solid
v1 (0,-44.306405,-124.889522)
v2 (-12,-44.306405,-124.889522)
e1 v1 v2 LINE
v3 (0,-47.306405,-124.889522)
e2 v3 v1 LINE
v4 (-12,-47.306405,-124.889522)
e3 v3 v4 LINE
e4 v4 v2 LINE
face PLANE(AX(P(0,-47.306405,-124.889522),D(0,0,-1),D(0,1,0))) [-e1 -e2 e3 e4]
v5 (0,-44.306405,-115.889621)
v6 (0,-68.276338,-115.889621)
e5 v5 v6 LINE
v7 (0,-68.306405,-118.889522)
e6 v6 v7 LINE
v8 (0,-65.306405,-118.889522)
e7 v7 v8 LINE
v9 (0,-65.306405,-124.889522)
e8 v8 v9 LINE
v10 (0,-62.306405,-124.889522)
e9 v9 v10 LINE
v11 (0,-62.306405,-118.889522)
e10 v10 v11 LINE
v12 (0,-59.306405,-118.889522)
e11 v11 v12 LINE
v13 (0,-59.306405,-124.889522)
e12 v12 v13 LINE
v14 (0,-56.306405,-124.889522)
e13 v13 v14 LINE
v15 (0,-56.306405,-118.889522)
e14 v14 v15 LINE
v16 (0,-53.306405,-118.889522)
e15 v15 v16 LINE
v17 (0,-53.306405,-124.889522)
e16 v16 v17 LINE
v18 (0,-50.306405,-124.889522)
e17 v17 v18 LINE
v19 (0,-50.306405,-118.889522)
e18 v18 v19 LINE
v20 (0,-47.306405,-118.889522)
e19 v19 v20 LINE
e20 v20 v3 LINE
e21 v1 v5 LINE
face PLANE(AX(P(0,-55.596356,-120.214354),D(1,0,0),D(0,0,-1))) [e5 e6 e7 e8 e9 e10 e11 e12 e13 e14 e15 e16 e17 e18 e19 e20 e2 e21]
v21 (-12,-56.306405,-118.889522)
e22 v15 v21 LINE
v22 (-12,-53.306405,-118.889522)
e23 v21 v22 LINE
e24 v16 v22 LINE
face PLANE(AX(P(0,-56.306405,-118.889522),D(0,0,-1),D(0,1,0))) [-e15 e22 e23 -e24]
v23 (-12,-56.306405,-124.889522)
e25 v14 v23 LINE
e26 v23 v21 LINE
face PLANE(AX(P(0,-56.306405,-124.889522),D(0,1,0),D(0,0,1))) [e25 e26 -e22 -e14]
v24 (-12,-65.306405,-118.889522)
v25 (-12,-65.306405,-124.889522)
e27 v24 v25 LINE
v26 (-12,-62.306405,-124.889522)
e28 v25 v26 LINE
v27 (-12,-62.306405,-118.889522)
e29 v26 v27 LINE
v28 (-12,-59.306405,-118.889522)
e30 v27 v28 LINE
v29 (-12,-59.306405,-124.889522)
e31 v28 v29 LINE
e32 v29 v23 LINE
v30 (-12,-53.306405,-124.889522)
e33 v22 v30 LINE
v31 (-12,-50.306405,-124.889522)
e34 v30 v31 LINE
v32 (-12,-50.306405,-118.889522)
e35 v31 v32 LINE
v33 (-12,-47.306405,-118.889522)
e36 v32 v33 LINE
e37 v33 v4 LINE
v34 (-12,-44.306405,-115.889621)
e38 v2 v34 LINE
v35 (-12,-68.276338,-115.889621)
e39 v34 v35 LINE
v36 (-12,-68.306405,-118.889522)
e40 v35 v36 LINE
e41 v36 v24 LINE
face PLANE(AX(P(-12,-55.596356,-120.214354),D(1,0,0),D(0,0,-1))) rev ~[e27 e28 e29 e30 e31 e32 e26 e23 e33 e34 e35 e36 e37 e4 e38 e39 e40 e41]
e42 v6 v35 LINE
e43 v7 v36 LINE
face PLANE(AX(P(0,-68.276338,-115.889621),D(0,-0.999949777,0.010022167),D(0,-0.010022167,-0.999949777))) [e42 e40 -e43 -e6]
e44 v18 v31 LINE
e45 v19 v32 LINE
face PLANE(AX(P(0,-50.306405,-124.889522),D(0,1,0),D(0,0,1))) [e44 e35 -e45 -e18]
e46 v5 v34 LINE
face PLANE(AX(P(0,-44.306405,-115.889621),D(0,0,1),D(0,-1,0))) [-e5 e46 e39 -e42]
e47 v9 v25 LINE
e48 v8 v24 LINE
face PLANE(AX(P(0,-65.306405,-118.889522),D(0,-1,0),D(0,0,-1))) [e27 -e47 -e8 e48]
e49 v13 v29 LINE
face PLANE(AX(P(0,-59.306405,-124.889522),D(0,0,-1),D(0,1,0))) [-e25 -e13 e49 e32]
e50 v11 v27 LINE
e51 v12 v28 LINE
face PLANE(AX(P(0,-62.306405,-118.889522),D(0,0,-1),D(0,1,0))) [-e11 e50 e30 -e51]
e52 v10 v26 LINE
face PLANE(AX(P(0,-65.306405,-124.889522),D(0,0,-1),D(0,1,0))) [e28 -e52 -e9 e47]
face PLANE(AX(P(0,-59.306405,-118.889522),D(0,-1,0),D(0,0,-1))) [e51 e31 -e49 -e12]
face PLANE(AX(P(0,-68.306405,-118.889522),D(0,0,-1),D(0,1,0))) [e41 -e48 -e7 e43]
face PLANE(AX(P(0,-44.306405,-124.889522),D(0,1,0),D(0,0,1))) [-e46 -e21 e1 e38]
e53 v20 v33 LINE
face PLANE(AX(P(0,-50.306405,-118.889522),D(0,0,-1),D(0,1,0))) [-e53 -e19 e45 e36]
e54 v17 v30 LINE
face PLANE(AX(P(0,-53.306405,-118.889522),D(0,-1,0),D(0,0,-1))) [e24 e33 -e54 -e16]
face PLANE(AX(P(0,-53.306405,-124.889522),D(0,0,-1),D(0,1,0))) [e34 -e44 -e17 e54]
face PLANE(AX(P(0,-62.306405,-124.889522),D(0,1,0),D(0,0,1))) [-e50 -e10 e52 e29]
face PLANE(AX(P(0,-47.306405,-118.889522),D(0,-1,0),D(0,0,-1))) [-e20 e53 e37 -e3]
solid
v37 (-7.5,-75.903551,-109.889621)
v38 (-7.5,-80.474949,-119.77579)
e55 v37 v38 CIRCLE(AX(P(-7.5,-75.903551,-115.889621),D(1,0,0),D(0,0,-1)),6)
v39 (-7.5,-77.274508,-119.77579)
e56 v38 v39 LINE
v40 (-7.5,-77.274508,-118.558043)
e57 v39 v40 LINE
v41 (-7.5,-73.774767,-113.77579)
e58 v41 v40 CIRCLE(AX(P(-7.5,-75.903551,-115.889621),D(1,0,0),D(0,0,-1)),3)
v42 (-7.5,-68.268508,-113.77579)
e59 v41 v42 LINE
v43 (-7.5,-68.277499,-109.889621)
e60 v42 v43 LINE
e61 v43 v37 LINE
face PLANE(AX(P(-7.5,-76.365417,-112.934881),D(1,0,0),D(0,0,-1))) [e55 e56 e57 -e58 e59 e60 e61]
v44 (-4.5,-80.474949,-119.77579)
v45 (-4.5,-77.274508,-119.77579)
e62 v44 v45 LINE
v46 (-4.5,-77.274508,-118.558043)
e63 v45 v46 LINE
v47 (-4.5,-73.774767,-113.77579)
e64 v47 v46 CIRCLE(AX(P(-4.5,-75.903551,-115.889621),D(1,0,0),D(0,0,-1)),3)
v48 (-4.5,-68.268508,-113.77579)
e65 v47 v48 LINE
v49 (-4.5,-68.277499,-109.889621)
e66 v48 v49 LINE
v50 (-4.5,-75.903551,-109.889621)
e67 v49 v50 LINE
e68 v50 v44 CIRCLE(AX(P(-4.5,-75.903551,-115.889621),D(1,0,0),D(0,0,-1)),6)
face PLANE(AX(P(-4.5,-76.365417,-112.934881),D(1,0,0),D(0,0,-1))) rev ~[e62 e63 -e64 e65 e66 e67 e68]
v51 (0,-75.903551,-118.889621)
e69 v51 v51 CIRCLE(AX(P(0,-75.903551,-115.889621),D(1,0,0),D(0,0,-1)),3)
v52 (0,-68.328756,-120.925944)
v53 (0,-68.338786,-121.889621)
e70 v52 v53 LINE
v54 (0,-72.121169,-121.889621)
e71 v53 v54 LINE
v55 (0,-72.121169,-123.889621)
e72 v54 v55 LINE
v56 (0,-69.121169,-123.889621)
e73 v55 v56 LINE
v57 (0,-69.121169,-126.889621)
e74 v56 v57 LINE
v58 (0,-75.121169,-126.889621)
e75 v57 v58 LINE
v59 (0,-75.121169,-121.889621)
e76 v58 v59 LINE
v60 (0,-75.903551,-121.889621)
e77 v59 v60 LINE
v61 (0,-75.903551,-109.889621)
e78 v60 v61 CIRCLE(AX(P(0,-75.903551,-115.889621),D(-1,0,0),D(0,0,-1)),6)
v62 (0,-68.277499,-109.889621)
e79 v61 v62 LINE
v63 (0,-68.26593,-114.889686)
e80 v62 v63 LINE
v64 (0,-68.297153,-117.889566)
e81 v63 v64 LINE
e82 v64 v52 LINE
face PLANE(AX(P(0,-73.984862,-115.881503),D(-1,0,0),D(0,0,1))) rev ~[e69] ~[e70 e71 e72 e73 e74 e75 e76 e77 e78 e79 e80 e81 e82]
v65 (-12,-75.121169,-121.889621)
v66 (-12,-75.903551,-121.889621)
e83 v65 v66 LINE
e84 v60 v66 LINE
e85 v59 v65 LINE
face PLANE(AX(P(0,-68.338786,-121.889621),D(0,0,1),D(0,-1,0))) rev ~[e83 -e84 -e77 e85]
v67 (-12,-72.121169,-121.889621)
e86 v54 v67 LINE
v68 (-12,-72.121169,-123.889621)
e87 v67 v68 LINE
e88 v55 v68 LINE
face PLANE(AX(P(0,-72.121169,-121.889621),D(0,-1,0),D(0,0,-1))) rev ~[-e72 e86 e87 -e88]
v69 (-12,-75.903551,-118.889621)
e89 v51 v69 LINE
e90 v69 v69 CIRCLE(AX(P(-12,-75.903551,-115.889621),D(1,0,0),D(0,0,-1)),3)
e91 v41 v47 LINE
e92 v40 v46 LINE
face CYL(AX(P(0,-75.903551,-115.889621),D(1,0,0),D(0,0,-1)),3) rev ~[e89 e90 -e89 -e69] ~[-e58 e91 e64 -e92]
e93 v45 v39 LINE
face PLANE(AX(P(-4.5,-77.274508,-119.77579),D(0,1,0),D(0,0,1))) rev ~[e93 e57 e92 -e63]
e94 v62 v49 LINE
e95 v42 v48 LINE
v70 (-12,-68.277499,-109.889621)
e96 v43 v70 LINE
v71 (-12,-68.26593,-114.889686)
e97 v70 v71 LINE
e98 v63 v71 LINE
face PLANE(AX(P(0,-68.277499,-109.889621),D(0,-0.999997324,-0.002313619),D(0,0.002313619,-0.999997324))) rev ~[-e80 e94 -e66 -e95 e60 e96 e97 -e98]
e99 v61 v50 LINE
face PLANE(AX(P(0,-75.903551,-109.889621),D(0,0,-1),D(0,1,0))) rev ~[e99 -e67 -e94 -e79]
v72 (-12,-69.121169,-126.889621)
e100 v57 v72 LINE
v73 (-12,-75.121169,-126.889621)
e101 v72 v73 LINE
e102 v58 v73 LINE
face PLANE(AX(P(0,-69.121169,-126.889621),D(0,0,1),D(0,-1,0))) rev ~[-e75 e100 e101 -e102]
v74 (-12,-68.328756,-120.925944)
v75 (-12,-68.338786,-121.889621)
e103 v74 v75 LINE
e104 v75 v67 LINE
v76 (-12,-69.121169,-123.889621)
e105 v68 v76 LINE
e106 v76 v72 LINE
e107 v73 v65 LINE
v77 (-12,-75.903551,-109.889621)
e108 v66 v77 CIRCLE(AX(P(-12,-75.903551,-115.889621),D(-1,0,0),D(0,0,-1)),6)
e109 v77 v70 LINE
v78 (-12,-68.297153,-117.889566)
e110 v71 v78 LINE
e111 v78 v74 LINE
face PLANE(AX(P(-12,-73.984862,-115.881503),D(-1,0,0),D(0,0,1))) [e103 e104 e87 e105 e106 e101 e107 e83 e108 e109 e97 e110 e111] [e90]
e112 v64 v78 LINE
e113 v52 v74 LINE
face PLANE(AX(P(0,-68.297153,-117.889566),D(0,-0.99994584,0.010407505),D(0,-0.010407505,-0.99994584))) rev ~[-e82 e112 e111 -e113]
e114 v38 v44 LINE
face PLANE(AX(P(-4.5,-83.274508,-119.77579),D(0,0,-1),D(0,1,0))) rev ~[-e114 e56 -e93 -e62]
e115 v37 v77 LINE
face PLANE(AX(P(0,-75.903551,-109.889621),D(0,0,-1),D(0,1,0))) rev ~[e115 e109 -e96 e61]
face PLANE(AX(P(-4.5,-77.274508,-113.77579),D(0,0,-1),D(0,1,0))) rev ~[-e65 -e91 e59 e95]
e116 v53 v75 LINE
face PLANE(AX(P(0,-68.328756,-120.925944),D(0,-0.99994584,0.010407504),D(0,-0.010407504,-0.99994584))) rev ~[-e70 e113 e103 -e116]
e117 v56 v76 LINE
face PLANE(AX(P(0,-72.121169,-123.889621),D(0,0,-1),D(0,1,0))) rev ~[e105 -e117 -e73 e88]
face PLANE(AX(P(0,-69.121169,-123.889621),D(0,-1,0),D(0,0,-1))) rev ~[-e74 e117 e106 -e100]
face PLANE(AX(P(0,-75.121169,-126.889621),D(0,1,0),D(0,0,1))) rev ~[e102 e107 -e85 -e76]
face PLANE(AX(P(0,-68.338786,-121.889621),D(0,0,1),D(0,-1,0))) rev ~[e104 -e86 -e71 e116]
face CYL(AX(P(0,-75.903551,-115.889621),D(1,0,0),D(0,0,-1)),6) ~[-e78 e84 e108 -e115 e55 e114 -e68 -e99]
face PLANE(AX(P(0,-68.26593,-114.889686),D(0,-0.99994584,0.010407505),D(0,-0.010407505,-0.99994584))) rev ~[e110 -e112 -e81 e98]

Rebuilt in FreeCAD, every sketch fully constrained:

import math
import FreeCAD as App
import Part
import Sketcher

V = App.Vector

doc = App.newDocument("Part")
params = doc.addObject("Spreadsheet::Sheet", "Params")
for row, (alias, value) in enumerate([
    ("sketch1_diameter", "6 mm"),
    ("sketch1_radius", "6 mm"),
    ("pad1_length", "12 mm"),
    ("sketch2_width", "16 mm"),
    ("sketch2_width2", "6 mm"),
    ("sketch2_height", "11.5 mm"),
    ("pocket1_length", "3 mm"),
    ("sketch3_width", "3 mm"),
    ("sketch3_height", "2 mm"),
    ("pad2_length", "12 mm"),
    ("sketch4_width", "3 mm"),
    ("sketch4_height", "6 mm"),
    ("pad3_length", "12 mm"),
], start=1):
    params.set(f"A{row}", alias)
    params.set(f"B{row}", "=" + value)
    params.setAlias(f"B{row}", alias)

body = doc.addObject("PartDesign::Body", "Body")

# Sketch on YZ plane
sketch1 = body.newObject("Sketcher::SketchObject", "Sketch")
sketch1.AttachmentSupport = (doc.getObject("YZ_Plane"), [""])
sketch1.MapMode = "FlatFace"
sketch1.addGeometry(Part.LineSegment(V(-68.297153, -117.889566, 0), V(-68.26593, -114.889686, 0)), False)
sketch1.addGeometry(Part.LineSegment(V(-68.26593, -114.889686, 0), V(-68.277499, -109.889621, 0)), False)
sketch1.addGeometry(Part.LineSegment(V(-68.277499, -109.889621, 0), V(-75.903551, -109.889621, 0)), False)
sketch1.addGeometry(Part.ArcOfCircle(Part.Circle(V(-75.903551, -115.889621, 0), V(0, 0, 1), 6), math.radians(90), math.radians(270)), False)
sketch1.addGeometry(Part.LineSegment(V(-75.903551, -121.889621, 0), V(-68.338786, -121.889621, 0)), False)
sketch1.addGeometry(Part.LineSegment(V(-68.338786, -121.889621, 0), V(-68.328756, -120.925944, 0)), False)
sketch1.addGeometry(Part.LineSegment(V(-68.328756, -120.925944, 0), V(-68.297153, -117.889566, 0)), False)
sketch1.addGeometry(Part.Circle(V(-75.903551, -115.889621, 0), V(0, 0, 1), 3), False)
sketch1.addConstraint(Sketcher.Constraint("Coincident", 0, 2, 1, 1))
sketch1.addConstraint(Sketcher.Constraint("Coincident", 1, 2, 2, 1))
sketch1.addConstraint(Sketcher.Constraint("Tangent", 2, 2, 3, 1))
sketch1.addConstraint(Sketcher.Constraint("Tangent", 3, 2, 4, 1))
sketch1.addConstraint(Sketcher.Constraint("Coincident", 4, 2, 5, 1))
sketch1.addConstraint(Sketcher.Constraint("Coincident", 5, 2, 6, 1))
sketch1.addConstraint(Sketcher.Constraint("Coincident", 6, 2, 0, 1))
sketch1.addConstraint(Sketcher.Constraint("Horizontal", 2))
sketch1.addConstraint(Sketcher.Constraint("Horizontal", 4))
sketch1.addConstraint(Sketcher.Constraint("Coincident", 7, 3, 3, 3))
sketch1.addConstraint(Sketcher.Constraint("Parallel", 0, 5))
sketch1.addConstraint(Sketcher.Constraint("Parallel", 5, 6))
sketch1.addConstraint(Sketcher.Constraint("Diameter", 7, 6.0))
sketch1.addConstraint(Sketcher.Constraint("Radius", 3, 6.0))
sketch1.addConstraint(Sketcher.Constraint("DistanceX", 1, 2, -1, 1, 68.277499))
sketch1.addConstraint(Sketcher.Constraint("Distance", 1, 5.000079))
sketch1.addConstraint(Sketcher.Constraint("Distance", 5, 0.963729))
sketch1.addConstraint(Sketcher.Constraint("DistanceX", 2, 2, 2, 1, 7.626052))
sketch1.addConstraint(Sketcher.Constraint("DistanceX", 4, 1, 4, 2, 7.564765))
sketch1.addConstraint(Sketcher.Constraint("DistanceY", 3, 3, -1, 1, 115.889621))
sketch1.addConstraint(Sketcher.Constraint("DistanceX", 0, 2, -1, 1, 68.26593))
sketch1.addConstraint(Sketcher.Constraint("DistanceY", 6, 2, 0, 2, 2.99988))
sketch1.setExpression("Constraints[12]", "Params.sketch1_diameter")
sketch1.setExpression("Constraints[13]", "Params.sketch1_radius")
pad1 = body.newObject("PartDesign::Pad", "Pad")
pad1.Profile = sketch1
pad1.setExpression("Length", "Params.pad1_length")
pad1.Reversed = True

# Sketch on YZ plane
sketch2 = body.newObject("Sketcher::SketchObject", "Sketch001")
sketch2.AttachmentSupport = (doc.getObject("YZ_Plane"), [""])
sketch2.MapMode = "FlatFace"
sketch2.AttachmentOffset = App.Placement(V(0, 0, -4.5), App.Rotation())
sketch2.addGeometry(Part.LineSegment(V(-67.274508, -108.27579, 0), V(-83.274508, -108.27579, 0)), False)
sketch2.addGeometry(Part.LineSegment(V(-83.274508, -108.27579, 0), V(-83.274508, -119.77579, 0)), False)
sketch2.addGeometry(Part.LineSegment(V(-83.274508, -119.77579, 0), V(-77.274508, -119.77579, 0)), False)
sketch2.addGeometry(Part.LineSegment(V(-77.274508, -119.77579, 0), V(-77.274508, -113.77579, 0)), False)
sketch2.addGeometry(Part.LineSegment(V(-77.274508, -113.77579, 0), V(-67.274508, -113.77579, 0)), False)
sketch2.addGeometry(Part.LineSegment(V(-67.274508, -113.77579, 0), V(-67.274508, -108.27579, 0)), False)
sketch2.addConstraint(Sketcher.Constraint("Coincident", 0, 2, 1, 1))
sketch2.addConstraint(Sketcher.Constraint("Coincident", 1, 2, 2, 1))
sketch2.addConstraint(Sketcher.Constraint("Coincident", 2, 2, 3, 1))
sketch2.addConstraint(Sketcher.Constraint("Coincident", 3, 2, 4, 1))
sketch2.addConstraint(Sketcher.Constraint("Coincident", 4, 2, 5, 1))
sketch2.addConstraint(Sketcher.Constraint("Coincident", 5, 2, 0, 1))
sketch2.addConstraint(Sketcher.Constraint("Horizontal", 0))
sketch2.addConstraint(Sketcher.Constraint("Vertical", 1))
sketch2.addConstraint(Sketcher.Constraint("Horizontal", 2))
sketch2.addConstraint(Sketcher.Constraint("Vertical", 3))
sketch2.addConstraint(Sketcher.Constraint("Horizontal", 4))
sketch2.addConstraint(Sketcher.Constraint("Vertical", 5))
sketch2.addConstraint(Sketcher.Constraint("Equal", 2, 3))
sketch2.addConstraint(Sketcher.Constraint("DistanceX", 0, 2, 0, 1, 16.0))
sketch2.addConstraint(Sketcher.Constraint("DistanceX", 2, 1, 2, 2, 6.0))
sketch2.addConstraint(Sketcher.Constraint("DistanceY", 1, 2, 1, 1, 11.5))
sketch2.addConstraint(Sketcher.Constraint("DistanceX", 0, 2, -1, 1, 83.274508))
sketch2.addConstraint(Sketcher.Constraint("DistanceY", 0, 2, -1, 1, 108.27579))
sketch2.setExpression("Constraints[13]", "Params.sketch2_width")
sketch2.setExpression("Constraints[14]", "Params.sketch2_width2")
sketch2.setExpression("Constraints[15]", "Params.sketch2_height")
pocket1 = body.newObject("PartDesign::Pocket", "Pocket")
pocket1.Profile = sketch2
pocket1.setExpression("Length", "Params.pocket1_length")

# Sketch on YZ plane
sketch3 = body.newObject("Sketcher::SketchObject", "Sketch002")
sketch3.AttachmentSupport = (doc.getObject("YZ_Plane"), [""])
sketch3.MapMode = "FlatFace"
sketch3.addGeometry(Part.LineSegment(V(-72.121169, -123.889621, 0), V(-72.121169, -121.889621, 0)), False)
sketch3.addGeometry(Part.LineSegment(V(-72.121169, -121.889621, 0), V(-75.121169, -121.889621, 0)), False)
sketch3.addGeometry(Part.LineSegment(V(-75.121169, -121.889621, 0), V(-75.121169, -126.889621, 0)), False)
sketch3.addGeometry(Part.LineSegment(V(-75.121169, -126.889621, 0), V(-69.121169, -126.889621, 0)), False)
sketch3.addGeometry(Part.LineSegment(V(-69.121169, -126.889621, 0), V(-69.121169, -123.889621, 0)), False)
sketch3.addGeometry(Part.LineSegment(V(-69.121169, -123.889621, 0), V(-72.121169, -123.889621, 0)), False)
sketch3.addConstraint(Sketcher.Constraint("Coincident", 0, 2, 1, 1))
sketch3.addConstraint(Sketcher.Constraint("Coincident", 1, 2, 2, 1))
sketch3.addConstraint(Sketcher.Constraint("Coincident", 2, 2, 3, 1))
sketch3.addConstraint(Sketcher.Constraint("Coincident", 3, 2, 4, 1))
sketch3.addConstraint(Sketcher.Constraint("Coincident", 4, 2, 5, 1))
sketch3.addConstraint(Sketcher.Constraint("Coincident", 5, 2, 0, 1))
sketch3.addConstraint(Sketcher.Constraint("Vertical", 0))
sketch3.addConstraint(Sketcher.Constraint("Horizontal", 1))
sketch3.addConstraint(Sketcher.Constraint("Vertical", 2))
sketch3.addConstraint(Sketcher.Constraint("Horizontal", 3))
sketch3.addConstraint(Sketcher.Constraint("Vertical", 4))
sketch3.addConstraint(Sketcher.Constraint("Horizontal", 5))
sketch3.addConstraint(Sketcher.Constraint("Equal", 1, 5))
sketch3.addConstraint(Sketcher.Constraint("Equal", 5, 4))
sketch3.addConstraint(Sketcher.Constraint("DistanceX", 1, 2, 1, 1, 3.0))
sketch3.addConstraint(Sketcher.Constraint("DistanceY", 0, 1, 0, 2, 2.0))
sketch3.addConstraint(Sketcher.Constraint("DistanceX", 0, 2, -1, 1, 72.121169))
sketch3.addConstraint(Sketcher.Constraint("DistanceY", 0, 2, -1, 1, 121.889621))
sketch3.setExpression("Constraints[14]", "Params.sketch3_width")
sketch3.setExpression("Constraints[15]", "Params.sketch3_height")
pad2 = body.newObject("PartDesign::Pad", "Pad001")
pad2.Profile = sketch3
pad2.setExpression("Length", "Params.pad2_length")
pad2.Reversed = True
body2 = doc.addObject("PartDesign::Body", "Body001")

# Sketch on YZ plane
sketch4 = body2.newObject("Sketcher::SketchObject", "Sketch003")
sketch4.AttachmentSupport = (doc.getObject("YZ_Plane001"), [""])
sketch4.MapMode = "FlatFace"
sketch4.addGeometry(Part.LineSegment(V(-44.306405, -115.889621, 0), V(-68.276338, -115.889621, 0)), False)
sketch4.addGeometry(Part.LineSegment(V(-68.276338, -115.889621, 0), V(-68.306405, -118.889522, 0)), False)
sketch4.addGeometry(Part.LineSegment(V(-68.306405, -118.889522, 0), V(-65.306405, -118.889522, 0)), False)
sketch4.addGeometry(Part.LineSegment(V(-65.306405, -118.889522, 0), V(-65.306405, -124.889522, 0)), False)
sketch4.addGeometry(Part.LineSegment(V(-65.306405, -124.889522, 0), V(-62.306405, -124.889522, 0)), False)
sketch4.addGeometry(Part.LineSegment(V(-62.306405, -124.889522, 0), V(-62.306405, -118.889522, 0)), False)
sketch4.addGeometry(Part.LineSegment(V(-62.306405, -118.889522, 0), V(-59.306405, -118.889522, 0)), False)
sketch4.addGeometry(Part.LineSegment(V(-59.306405, -118.889522, 0), V(-59.306405, -124.889522, 0)), False)
sketch4.addGeometry(Part.LineSegment(V(-59.306405, -124.889522, 0), V(-56.306405, -124.889522, 0)), False)
sketch4.addGeometry(Part.LineSegment(V(-56.306405, -124.889522, 0), V(-56.306405, -118.889522, 0)), False)
sketch4.addGeometry(Part.LineSegment(V(-56.306405, -118.889522, 0), V(-53.306405, -118.889522, 0)), False)
sketch4.addGeometry(Part.LineSegment(V(-53.306405, -118.889522, 0), V(-53.306405, -124.889522, 0)), False)
sketch4.addGeometry(Part.LineSegment(V(-53.306405, -124.889522, 0), V(-50.306405, -124.889522, 0)), False)
sketch4.addGeometry(Part.LineSegment(V(-50.306405, -124.889522, 0), V(-50.306405, -118.889522, 0)), False)
sketch4.addGeometry(Part.LineSegment(V(-50.306405, -118.889522, 0), V(-47.306405, -118.889522, 0)), False)
sketch4.addGeometry(Part.LineSegment(V(-47.306405, -118.889522, 0), V(-47.306405, -124.889522, 0)), False)
sketch4.addGeometry(Part.LineSegment(V(-47.306405, -124.889522, 0), V(-44.306405, -124.889522, 0)), False)
sketch4.addGeometry(Part.LineSegment(V(-44.306405, -124.889522, 0), V(-44.306405, -115.889621, 0)), False)
sketch4.addConstraint(Sketcher.Constraint("Coincident", 0, 2, 1, 1))
sketch4.addConstraint(Sketcher.Constraint("Coincident", 1, 2, 2, 1))
sketch4.addConstraint(Sketcher.Constraint("Coincident", 2, 2, 3, 1))
sketch4.addConstraint(Sketcher.Constraint("Coincident", 3, 2, 4, 1))
sketch4.addConstraint(Sketcher.Constraint("Coincident", 4, 2, 5, 1))
sketch4.addConstraint(Sketcher.Constraint("Coincident", 5, 2, 6, 1))
sketch4.addConstraint(Sketcher.Constraint("Coincident", 6, 2, 7, 1))
sketch4.addConstraint(Sketcher.Constraint("Coincident", 7, 2, 8, 1))
sketch4.addConstraint(Sketcher.Constraint("Coincident", 8, 2, 9, 1))
sketch4.addConstraint(Sketcher.Constraint("Coincident", 9, 2, 10, 1))
sketch4.addConstraint(Sketcher.Constraint("Coincident", 10, 2, 11, 1))
sketch4.addConstraint(Sketcher.Constraint("Coincident", 11, 2, 12, 1))
sketch4.addConstraint(Sketcher.Constraint("Coincident", 12, 2, 13, 1))
sketch4.addConstraint(Sketcher.Constraint("Coincident", 13, 2, 14, 1))
sketch4.addConstraint(Sketcher.Constraint("Coincident", 14, 2, 15, 1))
sketch4.addConstraint(Sketcher.Constraint("Coincident", 15, 2, 16, 1))
sketch4.addConstraint(Sketcher.Constraint("Coincident", 16, 2, 17, 1))
sketch4.addConstraint(Sketcher.Constraint("Coincident", 17, 2, 0, 1))
sketch4.addConstraint(Sketcher.Constraint("Horizontal", 0))
sketch4.addConstraint(Sketcher.Constraint("Horizontal", 2))
sketch4.addConstraint(Sketcher.Constraint("Vertical", 3))
sketch4.addConstraint(Sketcher.Constraint("Horizontal", 4))
sketch4.addConstraint(Sketcher.Constraint("Vertical", 5))
sketch4.addConstraint(Sketcher.Constraint("Horizontal", 6))
sketch4.addConstraint(Sketcher.Constraint("Vertical", 7))
sketch4.addConstraint(Sketcher.Constraint("Horizontal", 8))
sketch4.addConstraint(Sketcher.Constraint("Vertical", 9))
sketch4.addConstraint(Sketcher.Constraint("Horizontal", 10))
sketch4.addConstraint(Sketcher.Constraint("Vertical", 11))
sketch4.addConstraint(Sketcher.Constraint("Horizontal", 12))
sketch4.addConstraint(Sketcher.Constraint("Vertical", 13))
sketch4.addConstraint(Sketcher.Constraint("Horizontal", 14))
sketch4.addConstraint(Sketcher.Constraint("Vertical", 15))
sketch4.addConstraint(Sketcher.Constraint("Horizontal", 16))
sketch4.addConstraint(Sketcher.Constraint("Vertical", 17))
sketch4.addConstraint(Sketcher.Constraint("Horizontal", 2, 2, 5, 2))
sketch4.addConstraint(Sketcher.Constraint("Horizontal", 4, 2, 7, 2))
sketch4.addConstraint(Sketcher.Constraint("Horizontal", 6, 2, 9, 2))
sketch4.addConstraint(Sketcher.Constraint("Horizontal", 8, 2, 11, 2))
sketch4.addConstraint(Sketcher.Constraint("Horizontal", 10, 2, 13, 2))
sketch4.addConstraint(Sketcher.Constraint("Horizontal", 12, 2, 15, 2))
sketch4.addConstraint(Sketcher.Constraint("Equal", 2, 4))
sketch4.addConstraint(Sketcher.Constraint("Equal", 4, 6))
sketch4.addConstraint(Sketcher.Constraint("Equal", 6, 8))
sketch4.addConstraint(Sketcher.Constraint("Equal", 8, 10))
sketch4.addConstraint(Sketcher.Constraint("Equal", 10, 12))
sketch4.addConstraint(Sketcher.Constraint("Equal", 12, 14))
sketch4.addConstraint(Sketcher.Constraint("Equal", 14, 16))
sketch4.addConstraint(Sketcher.Constraint("DistanceX", 2, 1, 2, 2, 3.0))
sketch4.addConstraint(Sketcher.Constraint("DistanceY", 3, 2, 3, 1, 6.0))
sketch4.addConstraint(Sketcher.Constraint("DistanceY", 17, 1, 17, 2, 8.999902))
sketch4.addConstraint(Sketcher.Constraint("DistanceX", 0, 2, 0, 1, 23.969933))
sketch4.addConstraint(Sketcher.Constraint("DistanceY", 0, 2, -1, 1, 115.889621))
sketch4.addConstraint(Sketcher.Constraint("DistanceX", 0, 2, -1, 1, 68.276338))
sketch4.setExpression("Constraints[48]", "Params.sketch4_width")
sketch4.setExpression("Constraints[49]", "Params.sketch4_height")
pad3 = body2.newObject("PartDesign::Pad", "Pad002")
pad3.Profile = sketch4
pad3.setExpression("Length", "Params.pad3_length")
pad3.Reversed = True

doc.recompute()
